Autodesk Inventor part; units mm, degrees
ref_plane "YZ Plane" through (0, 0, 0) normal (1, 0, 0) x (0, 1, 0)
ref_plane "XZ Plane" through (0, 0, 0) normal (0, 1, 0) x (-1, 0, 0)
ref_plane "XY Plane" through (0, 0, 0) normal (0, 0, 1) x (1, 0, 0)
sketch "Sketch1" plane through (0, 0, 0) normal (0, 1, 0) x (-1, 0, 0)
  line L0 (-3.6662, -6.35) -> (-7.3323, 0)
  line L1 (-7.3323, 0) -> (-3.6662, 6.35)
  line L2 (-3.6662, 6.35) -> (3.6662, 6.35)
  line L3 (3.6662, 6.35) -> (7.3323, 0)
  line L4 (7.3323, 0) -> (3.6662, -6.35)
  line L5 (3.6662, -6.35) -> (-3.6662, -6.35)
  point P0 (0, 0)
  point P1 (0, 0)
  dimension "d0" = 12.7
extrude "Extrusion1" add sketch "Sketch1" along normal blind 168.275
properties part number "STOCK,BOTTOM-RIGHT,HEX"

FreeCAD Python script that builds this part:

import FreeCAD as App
import Part
import Sketcher

V = App.Vector
Q = App.Units.Quantity

doc = App.newDocument("Part")
body = doc.addObject("PartDesign::Body", "Body")

# Sketch on XZ plane
sketch1 = body.newObject("Sketcher::SketchObject", "Sketch")
sketch1.AttachmentSupport = (doc.getObject("XZ_Plane"), [""])
sketch1.MapMode = "FlatFace"
sketch1.addGeometry([
    Part.LineSegment(V(7, 0, 0), V(4, -6, 0)),  # 0
    Part.LineSegment(V(4, -6, 0), V(-4, -6, 0)),  # 1
    Part.LineSegment(V(-4, -6, 0), V(-7, 0, 0)),  # 2
    Part.LineSegment(V(-7, 0, 0), V(-4, 6, 0)),  # 3
    Part.LineSegment(V(-4, 6, 0), V(4, 6, 0)),  # 4
    Part.LineSegment(V(4, 6, 0), V(7, 0, 0)),  # 5
], False)
sketch1.addConstraint([
    Sketcher.Constraint("Coincident", 0, 2, 1, 1),
    Sketcher.Constraint("Coincident", 1, 2, 2, 1),
    Sketcher.Constraint("Coincident", 2, 2, 3, 1),
    Sketcher.Constraint("Coincident", 3, 2, 4, 1),
    Sketcher.Constraint("Coincident", 4, 2, 5, 1),
    Sketcher.Constraint("Coincident", 5, 2, 0, 1),
    Sketcher.Constraint("Horizontal", 1),
    Sketcher.Constraint("Horizontal", 4),
    Sketcher.Constraint("Symmetric", 0, 2, 3, 2, -1, 1),
    Sketcher.Constraint("Symmetric", 2, 2, 5, 2, -1, 1),
    Sketcher.Constraint("PointOnObject", 2, 2, -1),
    Sketcher.Constraint("Parallel", 2, 5),
    Sketcher.Constraint("Vertical", 1, 2, 3, 2),
    Sketcher.Constraint("DistanceY", 1, 2, 3, 2, Q("0.5 in")),
    Sketcher.Constraint("Angle", 0, Q("-119.9995 deg")),
    Sketcher.Constraint("DistanceX", 2, 2, 0, 2, Q("0.433 in")),
])
pad1 = body.newObject("PartDesign::Pad", "Pad")
pad1.Profile = sketch1
pad1.Length = Q("6.625 in")
pad1.Reversed = True

doc.recompute()
